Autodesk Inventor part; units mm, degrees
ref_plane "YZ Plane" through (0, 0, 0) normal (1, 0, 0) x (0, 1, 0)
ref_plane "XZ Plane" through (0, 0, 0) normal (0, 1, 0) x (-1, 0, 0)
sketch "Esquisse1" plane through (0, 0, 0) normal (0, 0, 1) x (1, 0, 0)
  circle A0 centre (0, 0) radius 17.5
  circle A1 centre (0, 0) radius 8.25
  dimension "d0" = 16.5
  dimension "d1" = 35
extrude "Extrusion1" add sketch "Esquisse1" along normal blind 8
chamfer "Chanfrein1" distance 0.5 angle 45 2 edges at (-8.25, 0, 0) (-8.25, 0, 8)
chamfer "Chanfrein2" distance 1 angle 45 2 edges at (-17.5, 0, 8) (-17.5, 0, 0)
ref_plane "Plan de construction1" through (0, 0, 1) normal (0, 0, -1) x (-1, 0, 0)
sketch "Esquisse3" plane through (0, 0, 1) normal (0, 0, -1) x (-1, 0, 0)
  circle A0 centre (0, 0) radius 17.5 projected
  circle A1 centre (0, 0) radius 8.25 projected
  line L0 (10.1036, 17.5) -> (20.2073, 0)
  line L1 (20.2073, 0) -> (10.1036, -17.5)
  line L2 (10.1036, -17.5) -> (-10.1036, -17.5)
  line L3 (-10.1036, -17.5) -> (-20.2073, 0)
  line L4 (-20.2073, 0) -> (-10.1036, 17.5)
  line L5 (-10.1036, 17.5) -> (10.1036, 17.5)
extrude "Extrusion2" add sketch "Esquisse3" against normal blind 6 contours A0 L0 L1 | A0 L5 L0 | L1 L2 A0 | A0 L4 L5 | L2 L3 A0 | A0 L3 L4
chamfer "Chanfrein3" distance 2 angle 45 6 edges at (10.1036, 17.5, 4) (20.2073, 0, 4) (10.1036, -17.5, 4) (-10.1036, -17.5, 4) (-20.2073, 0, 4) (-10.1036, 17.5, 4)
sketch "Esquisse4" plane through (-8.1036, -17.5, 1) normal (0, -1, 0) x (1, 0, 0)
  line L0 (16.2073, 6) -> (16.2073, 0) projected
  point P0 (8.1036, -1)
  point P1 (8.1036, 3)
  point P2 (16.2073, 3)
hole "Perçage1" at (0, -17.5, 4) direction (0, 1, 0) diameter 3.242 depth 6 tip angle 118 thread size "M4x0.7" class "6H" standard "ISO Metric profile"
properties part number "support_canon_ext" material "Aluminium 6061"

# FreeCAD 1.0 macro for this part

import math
import FreeCAD as App
import Part
import Sketcher
from FreeCAD import Vector


def edges_at(feature, points):
    """Names of the edges that pass closest to the given points."""
    edges = feature.Shape.Edges
    near = lambda p: min(range(len(edges)), key=lambda i: edges[i].distToShape(Part.Vertex(*p))[0])
    return sorted({f"Edge{near(p) + 1}" for p in points})

doc = App.newDocument("Part")
params = doc.addObject("Spreadsheet::Sheet", "Params")
for row, (alias, value) in enumerate([
    ("sketch1_diameter", "35 mm"),
    ("sketch1_diameter2", "16.5 mm"),
    ("pad1_length", "8 mm"),
    ("chamfer_size", "0.5 mm"),
    ("chamfer2_size", "1 mm"),
    ("sketch2_radius", "17.5 mm"),
    ("pad2_length", "6 mm"),
    ("chamfer3_size", "2 mm"),
    ("hole_diameter", "3.242 mm"),
    ("hole_depth", "6 mm"),
], start=1):
    params.set(f"A{row}", alias)
    params.set(f"B{row}", "=" + value)
    params.setAlias(f"B{row}", alias)

body = doc.addObject("PartDesign::Body", "Body")

sketch1 = doc.addObject("Sketcher::SketchObject", "Sketch")
body.addObject(sketch1)
sketch1.AttachmentSupport = (doc.XY_Plane, [""])
sketch1.MapMode = "FlatFace"
sketch1.addGeometry([
    Part.Circle(Vector(0, 0, 0), Vector(0, 0, 1), 18),
    Part.Circle(Vector(0, 0, 0), Vector(0, 0, 1), 8),
], False)
sketch1.addConstraint([
    Sketcher.Constraint("Coincident", 0, 3, -1, 1),
    Sketcher.Constraint("Coincident", 1, 3, -1, 1),
    Sketcher.Constraint("Diameter", 0, 35.0),
    Sketcher.Constraint("Diameter", 1, 16.5),
])
sketch1.setExpression("Constraints[2]", "Params.sketch1_diameter")
sketch1.setExpression("Constraints[3]", "Params.sketch1_diameter2")
pad1 = doc.addObject("PartDesign::Pad", "Pad")
body.addObject(pad1)
pad1.Profile = sketch1
pad1.setExpression("Length", "Params.pad1_length")
doc.recompute()

chamfer = doc.addObject("PartDesign::Chamfer", "Chamfer")
body.addObject(chamfer)
chamfer.Base = (pad1, edges_at(pad1, [(-8.25, 0, 0), (-8.25, 0, 8)]))
chamfer.setExpression("Size", "Params.chamfer_size")
doc.recompute()

chamfer2 = doc.addObject("PartDesign::Chamfer", "Chamfer001")
body.addObject(chamfer2)
chamfer2.Base = (chamfer, edges_at(chamfer, [(-17.5, 0, 8), (-17.5, 0, 0)]))
chamfer2.setExpression("Size", "Params.chamfer2_size")

sketch2 = doc.addObject("Sketcher::SketchObject", "Sketch001")
body.addObject(sketch2)
sketch2.AttachmentSupport = (doc.XY_Plane, [""])
sketch2.MapMode = "FlatFace"
sketch2.AttachmentOffset = App.Placement(Vector(0, 0, 1), App.Rotation())
sketch2.addGeometry([
    Part.ArcOfCircle(Part.Circle(Vector(0, 0, 0), Vector(0, 0, 1), 18), math.radians(150), math.radians(210)),
    Part.LineSegment(Vector(-15, -9, 0), Vector(-20, 0, 0)),
    Part.LineSegment(Vector(-20, 0, 0), Vector(-15, 9, 0)),
    Part.ArcOfCircle(Part.Circle(Vector(0, 0, 0), Vector(0, 0, 1), 18), math.radians(90), math.radians(150)),
    Part.LineSegment(Vector(-15, 9, 0), Vector(-10, 18, 0)),
    Part.LineSegment(Vector(-10, 18, 0), Vector(0, 18, 0)),
    Part.LineSegment(Vector(-10, -18, 0), Vector(-15, -9, 0)),
    Part.ArcOfCircle(Part.Circle(Vector(0, 0, 0), Vector(0, 0, 1), 18), math.radians(-150), math.radians(-90)),
    Part.LineSegment(Vector(0, -18, 0), Vector(-10, -18, 0)),
    Part.ArcOfCircle(Part.Circle(Vector(0, 0, 0), Vector(0, 0, 1), 18), math.radians(30), math.radians(90)),
    Part.LineSegment(Vector(0, 18, 0), Vector(10, 18, 0)),
    Part.LineSegment(Vector(10, 18, 0), Vector(15, 9, 0)),
    Part.LineSegment(Vector(10, -18, 0), Vector(0, -18, 0)),
    Part.ArcOfCircle(Part.Circle(Vector(0, 0, 0), Vector(0, 0, 1), 18), math.radians(-90), math.radians(-30)),
    Part.LineSegment(Vector(15, -9, 0), Vector(10, -18, 0)),
    Part.ArcOfCircle(Part.Circle(Vector(0, 0, 0), Vector(0, 0, 1), 18), math.radians(-30), math.radians(30)),
    Part.LineSegment(Vector(15, 9, 0), Vector(20, 0, 0)),
    Part.LineSegment(Vector(20, 0, 0), Vector(15, -9, 0)),
], False)
sketch2.addConstraint([
    Sketcher.Constraint("Tangent", 0, 2, 1, 1),
    Sketcher.Constraint("Coincident", 1, 2, 2, 1),
    Sketcher.Constraint("Tangent", 2, 2, 0, 1),
    Sketcher.Constraint("Tangent", 3, 2, 4, 1),
    Sketcher.Constraint("Coincident", 4, 2, 5, 1),
    Sketcher.Constraint("Tangent", 5, 2, 3, 1),
    Sketcher.Constraint("Tangent", 6, 2, 7, 1),
    Sketcher.Constraint("Tangent", 7, 2, 8, 1),
    Sketcher.Constraint("Coincident", 8, 2, 6, 1),
    Sketcher.Constraint("Tangent", 9, 2, 10, 1),
    Sketcher.Constraint("Coincident", 10, 2, 11, 1),
    Sketcher.Constraint("Tangent", 11, 2, 9, 1),
    Sketcher.Constraint("Tangent", 12, 2, 13, 1),
    Sketcher.Constraint("Tangent", 13, 2, 14, 1),
    Sketcher.Constraint("Coincident", 14, 2, 12, 1),
    Sketcher.Constraint("Tangent", 15, 2, 16, 1),
    Sketcher.Constraint("Coincident", 16, 2, 17, 1),
    Sketcher.Constraint("Tangent", 17, 2, 15, 1),
    Sketcher.Constraint("Horizontal", 5),
    Sketcher.Constraint("Horizontal", 8),
    Sketcher.Constraint("Horizontal", 10),
    Sketcher.Constraint("Horizontal", 12),
    Sketcher.Constraint("Coincident", 0, 3, -1, 1),
    Sketcher.Constraint("Coincident", 3, 3, -1, 1),
    Sketcher.Constraint("Coincident", 7, 3, -1, 1),
    Sketcher.Constraint("Coincident", 9, 3, -1, 1),
    Sketcher.Constraint("Coincident", 13, 3, -1, 1),
    Sketcher.Constraint("Coincident", 15, 3, -1, 1),
    Sketcher.Constraint("Coincident", 3, 2, 2, 2),
    Sketcher.Constraint("Coincident", 6, 2, 0, 2),
    Sketcher.Constraint("Coincident", 15, 2, 11, 2),
    Sketcher.Constraint("Coincident", 17, 2, 13, 2),
    Sketcher.Constraint("Equal", 7, 9),
    Sketcher.Constraint("Symmetric", 1, 2, 16, 2, -1, 1),
    Sketcher.Constraint("PointOnObject", 1, 2, -1),
    Sketcher.Constraint("Equal", 2, 4),
    Sketcher.Constraint("Radius", 0, 17.5),
])
sketch2.setExpression("Constraints[36]", "Params.sketch2_radius")
pad2 = doc.addObject("PartDesign::Pad", "Pad001")
body.addObject(pad2)
pad2.Profile = sketch2
pad2.setExpression("Length", "Params.pad2_length")
doc.recompute()

chamfer3 = doc.addObject("PartDesign::Chamfer", "Chamfer002")
body.addObject(chamfer3)
chamfer3.Base = (pad2, edges_at(pad2, [
    (10.104, 17.5, 4),
    (20.207, 0, 4),
    (10.104, -17.5, 4),
    (-10.104, -17.5, 4),
    (-20.207, 0, 4),
    (-10.104, 17.5, 4),
]))
chamfer3.setExpression("Size", "Params.chamfer3_size")

sketch3 = doc.addObject("Sketcher::SketchObject", "Sketch002")
body.addObject(sketch3)
sketch3.AttachmentSupport = (doc.XZ_Plane, [""])
sketch3.MapMode = "FlatFace"
sketch3.AttachmentOffset = App.Placement(Vector(0, 0, 17.5), App.Rotation())
sketch3.addGeometry(Part.Circle(Vector(0, 4, 0), Vector(0, 0, 1), 1.6), False)
sketch3.addConstraint([
    Sketcher.Constraint("PointOnObject", 0, 3, -2),
    Sketcher.Constraint("Diameter", 0, 3.242),
    Sketcher.Constraint("DistanceY", -1, 1, 0, 3, 4.0),
])
doc.recompute()
hole = doc.addObject("PartDesign::Hole", "Hole")
body.addObject(hole)
hole.Profile = sketch3
hole.ThreadType = "None"
hole.setExpression("Diameter", "Params.hole_diameter")
hole.DepthType = "Dimension"
hole.setExpression("Depth", "Params.hole_depth")
hole.DrillPoint = "Angled"
hole.DrillPointAngle = 118

doc.recompute()
